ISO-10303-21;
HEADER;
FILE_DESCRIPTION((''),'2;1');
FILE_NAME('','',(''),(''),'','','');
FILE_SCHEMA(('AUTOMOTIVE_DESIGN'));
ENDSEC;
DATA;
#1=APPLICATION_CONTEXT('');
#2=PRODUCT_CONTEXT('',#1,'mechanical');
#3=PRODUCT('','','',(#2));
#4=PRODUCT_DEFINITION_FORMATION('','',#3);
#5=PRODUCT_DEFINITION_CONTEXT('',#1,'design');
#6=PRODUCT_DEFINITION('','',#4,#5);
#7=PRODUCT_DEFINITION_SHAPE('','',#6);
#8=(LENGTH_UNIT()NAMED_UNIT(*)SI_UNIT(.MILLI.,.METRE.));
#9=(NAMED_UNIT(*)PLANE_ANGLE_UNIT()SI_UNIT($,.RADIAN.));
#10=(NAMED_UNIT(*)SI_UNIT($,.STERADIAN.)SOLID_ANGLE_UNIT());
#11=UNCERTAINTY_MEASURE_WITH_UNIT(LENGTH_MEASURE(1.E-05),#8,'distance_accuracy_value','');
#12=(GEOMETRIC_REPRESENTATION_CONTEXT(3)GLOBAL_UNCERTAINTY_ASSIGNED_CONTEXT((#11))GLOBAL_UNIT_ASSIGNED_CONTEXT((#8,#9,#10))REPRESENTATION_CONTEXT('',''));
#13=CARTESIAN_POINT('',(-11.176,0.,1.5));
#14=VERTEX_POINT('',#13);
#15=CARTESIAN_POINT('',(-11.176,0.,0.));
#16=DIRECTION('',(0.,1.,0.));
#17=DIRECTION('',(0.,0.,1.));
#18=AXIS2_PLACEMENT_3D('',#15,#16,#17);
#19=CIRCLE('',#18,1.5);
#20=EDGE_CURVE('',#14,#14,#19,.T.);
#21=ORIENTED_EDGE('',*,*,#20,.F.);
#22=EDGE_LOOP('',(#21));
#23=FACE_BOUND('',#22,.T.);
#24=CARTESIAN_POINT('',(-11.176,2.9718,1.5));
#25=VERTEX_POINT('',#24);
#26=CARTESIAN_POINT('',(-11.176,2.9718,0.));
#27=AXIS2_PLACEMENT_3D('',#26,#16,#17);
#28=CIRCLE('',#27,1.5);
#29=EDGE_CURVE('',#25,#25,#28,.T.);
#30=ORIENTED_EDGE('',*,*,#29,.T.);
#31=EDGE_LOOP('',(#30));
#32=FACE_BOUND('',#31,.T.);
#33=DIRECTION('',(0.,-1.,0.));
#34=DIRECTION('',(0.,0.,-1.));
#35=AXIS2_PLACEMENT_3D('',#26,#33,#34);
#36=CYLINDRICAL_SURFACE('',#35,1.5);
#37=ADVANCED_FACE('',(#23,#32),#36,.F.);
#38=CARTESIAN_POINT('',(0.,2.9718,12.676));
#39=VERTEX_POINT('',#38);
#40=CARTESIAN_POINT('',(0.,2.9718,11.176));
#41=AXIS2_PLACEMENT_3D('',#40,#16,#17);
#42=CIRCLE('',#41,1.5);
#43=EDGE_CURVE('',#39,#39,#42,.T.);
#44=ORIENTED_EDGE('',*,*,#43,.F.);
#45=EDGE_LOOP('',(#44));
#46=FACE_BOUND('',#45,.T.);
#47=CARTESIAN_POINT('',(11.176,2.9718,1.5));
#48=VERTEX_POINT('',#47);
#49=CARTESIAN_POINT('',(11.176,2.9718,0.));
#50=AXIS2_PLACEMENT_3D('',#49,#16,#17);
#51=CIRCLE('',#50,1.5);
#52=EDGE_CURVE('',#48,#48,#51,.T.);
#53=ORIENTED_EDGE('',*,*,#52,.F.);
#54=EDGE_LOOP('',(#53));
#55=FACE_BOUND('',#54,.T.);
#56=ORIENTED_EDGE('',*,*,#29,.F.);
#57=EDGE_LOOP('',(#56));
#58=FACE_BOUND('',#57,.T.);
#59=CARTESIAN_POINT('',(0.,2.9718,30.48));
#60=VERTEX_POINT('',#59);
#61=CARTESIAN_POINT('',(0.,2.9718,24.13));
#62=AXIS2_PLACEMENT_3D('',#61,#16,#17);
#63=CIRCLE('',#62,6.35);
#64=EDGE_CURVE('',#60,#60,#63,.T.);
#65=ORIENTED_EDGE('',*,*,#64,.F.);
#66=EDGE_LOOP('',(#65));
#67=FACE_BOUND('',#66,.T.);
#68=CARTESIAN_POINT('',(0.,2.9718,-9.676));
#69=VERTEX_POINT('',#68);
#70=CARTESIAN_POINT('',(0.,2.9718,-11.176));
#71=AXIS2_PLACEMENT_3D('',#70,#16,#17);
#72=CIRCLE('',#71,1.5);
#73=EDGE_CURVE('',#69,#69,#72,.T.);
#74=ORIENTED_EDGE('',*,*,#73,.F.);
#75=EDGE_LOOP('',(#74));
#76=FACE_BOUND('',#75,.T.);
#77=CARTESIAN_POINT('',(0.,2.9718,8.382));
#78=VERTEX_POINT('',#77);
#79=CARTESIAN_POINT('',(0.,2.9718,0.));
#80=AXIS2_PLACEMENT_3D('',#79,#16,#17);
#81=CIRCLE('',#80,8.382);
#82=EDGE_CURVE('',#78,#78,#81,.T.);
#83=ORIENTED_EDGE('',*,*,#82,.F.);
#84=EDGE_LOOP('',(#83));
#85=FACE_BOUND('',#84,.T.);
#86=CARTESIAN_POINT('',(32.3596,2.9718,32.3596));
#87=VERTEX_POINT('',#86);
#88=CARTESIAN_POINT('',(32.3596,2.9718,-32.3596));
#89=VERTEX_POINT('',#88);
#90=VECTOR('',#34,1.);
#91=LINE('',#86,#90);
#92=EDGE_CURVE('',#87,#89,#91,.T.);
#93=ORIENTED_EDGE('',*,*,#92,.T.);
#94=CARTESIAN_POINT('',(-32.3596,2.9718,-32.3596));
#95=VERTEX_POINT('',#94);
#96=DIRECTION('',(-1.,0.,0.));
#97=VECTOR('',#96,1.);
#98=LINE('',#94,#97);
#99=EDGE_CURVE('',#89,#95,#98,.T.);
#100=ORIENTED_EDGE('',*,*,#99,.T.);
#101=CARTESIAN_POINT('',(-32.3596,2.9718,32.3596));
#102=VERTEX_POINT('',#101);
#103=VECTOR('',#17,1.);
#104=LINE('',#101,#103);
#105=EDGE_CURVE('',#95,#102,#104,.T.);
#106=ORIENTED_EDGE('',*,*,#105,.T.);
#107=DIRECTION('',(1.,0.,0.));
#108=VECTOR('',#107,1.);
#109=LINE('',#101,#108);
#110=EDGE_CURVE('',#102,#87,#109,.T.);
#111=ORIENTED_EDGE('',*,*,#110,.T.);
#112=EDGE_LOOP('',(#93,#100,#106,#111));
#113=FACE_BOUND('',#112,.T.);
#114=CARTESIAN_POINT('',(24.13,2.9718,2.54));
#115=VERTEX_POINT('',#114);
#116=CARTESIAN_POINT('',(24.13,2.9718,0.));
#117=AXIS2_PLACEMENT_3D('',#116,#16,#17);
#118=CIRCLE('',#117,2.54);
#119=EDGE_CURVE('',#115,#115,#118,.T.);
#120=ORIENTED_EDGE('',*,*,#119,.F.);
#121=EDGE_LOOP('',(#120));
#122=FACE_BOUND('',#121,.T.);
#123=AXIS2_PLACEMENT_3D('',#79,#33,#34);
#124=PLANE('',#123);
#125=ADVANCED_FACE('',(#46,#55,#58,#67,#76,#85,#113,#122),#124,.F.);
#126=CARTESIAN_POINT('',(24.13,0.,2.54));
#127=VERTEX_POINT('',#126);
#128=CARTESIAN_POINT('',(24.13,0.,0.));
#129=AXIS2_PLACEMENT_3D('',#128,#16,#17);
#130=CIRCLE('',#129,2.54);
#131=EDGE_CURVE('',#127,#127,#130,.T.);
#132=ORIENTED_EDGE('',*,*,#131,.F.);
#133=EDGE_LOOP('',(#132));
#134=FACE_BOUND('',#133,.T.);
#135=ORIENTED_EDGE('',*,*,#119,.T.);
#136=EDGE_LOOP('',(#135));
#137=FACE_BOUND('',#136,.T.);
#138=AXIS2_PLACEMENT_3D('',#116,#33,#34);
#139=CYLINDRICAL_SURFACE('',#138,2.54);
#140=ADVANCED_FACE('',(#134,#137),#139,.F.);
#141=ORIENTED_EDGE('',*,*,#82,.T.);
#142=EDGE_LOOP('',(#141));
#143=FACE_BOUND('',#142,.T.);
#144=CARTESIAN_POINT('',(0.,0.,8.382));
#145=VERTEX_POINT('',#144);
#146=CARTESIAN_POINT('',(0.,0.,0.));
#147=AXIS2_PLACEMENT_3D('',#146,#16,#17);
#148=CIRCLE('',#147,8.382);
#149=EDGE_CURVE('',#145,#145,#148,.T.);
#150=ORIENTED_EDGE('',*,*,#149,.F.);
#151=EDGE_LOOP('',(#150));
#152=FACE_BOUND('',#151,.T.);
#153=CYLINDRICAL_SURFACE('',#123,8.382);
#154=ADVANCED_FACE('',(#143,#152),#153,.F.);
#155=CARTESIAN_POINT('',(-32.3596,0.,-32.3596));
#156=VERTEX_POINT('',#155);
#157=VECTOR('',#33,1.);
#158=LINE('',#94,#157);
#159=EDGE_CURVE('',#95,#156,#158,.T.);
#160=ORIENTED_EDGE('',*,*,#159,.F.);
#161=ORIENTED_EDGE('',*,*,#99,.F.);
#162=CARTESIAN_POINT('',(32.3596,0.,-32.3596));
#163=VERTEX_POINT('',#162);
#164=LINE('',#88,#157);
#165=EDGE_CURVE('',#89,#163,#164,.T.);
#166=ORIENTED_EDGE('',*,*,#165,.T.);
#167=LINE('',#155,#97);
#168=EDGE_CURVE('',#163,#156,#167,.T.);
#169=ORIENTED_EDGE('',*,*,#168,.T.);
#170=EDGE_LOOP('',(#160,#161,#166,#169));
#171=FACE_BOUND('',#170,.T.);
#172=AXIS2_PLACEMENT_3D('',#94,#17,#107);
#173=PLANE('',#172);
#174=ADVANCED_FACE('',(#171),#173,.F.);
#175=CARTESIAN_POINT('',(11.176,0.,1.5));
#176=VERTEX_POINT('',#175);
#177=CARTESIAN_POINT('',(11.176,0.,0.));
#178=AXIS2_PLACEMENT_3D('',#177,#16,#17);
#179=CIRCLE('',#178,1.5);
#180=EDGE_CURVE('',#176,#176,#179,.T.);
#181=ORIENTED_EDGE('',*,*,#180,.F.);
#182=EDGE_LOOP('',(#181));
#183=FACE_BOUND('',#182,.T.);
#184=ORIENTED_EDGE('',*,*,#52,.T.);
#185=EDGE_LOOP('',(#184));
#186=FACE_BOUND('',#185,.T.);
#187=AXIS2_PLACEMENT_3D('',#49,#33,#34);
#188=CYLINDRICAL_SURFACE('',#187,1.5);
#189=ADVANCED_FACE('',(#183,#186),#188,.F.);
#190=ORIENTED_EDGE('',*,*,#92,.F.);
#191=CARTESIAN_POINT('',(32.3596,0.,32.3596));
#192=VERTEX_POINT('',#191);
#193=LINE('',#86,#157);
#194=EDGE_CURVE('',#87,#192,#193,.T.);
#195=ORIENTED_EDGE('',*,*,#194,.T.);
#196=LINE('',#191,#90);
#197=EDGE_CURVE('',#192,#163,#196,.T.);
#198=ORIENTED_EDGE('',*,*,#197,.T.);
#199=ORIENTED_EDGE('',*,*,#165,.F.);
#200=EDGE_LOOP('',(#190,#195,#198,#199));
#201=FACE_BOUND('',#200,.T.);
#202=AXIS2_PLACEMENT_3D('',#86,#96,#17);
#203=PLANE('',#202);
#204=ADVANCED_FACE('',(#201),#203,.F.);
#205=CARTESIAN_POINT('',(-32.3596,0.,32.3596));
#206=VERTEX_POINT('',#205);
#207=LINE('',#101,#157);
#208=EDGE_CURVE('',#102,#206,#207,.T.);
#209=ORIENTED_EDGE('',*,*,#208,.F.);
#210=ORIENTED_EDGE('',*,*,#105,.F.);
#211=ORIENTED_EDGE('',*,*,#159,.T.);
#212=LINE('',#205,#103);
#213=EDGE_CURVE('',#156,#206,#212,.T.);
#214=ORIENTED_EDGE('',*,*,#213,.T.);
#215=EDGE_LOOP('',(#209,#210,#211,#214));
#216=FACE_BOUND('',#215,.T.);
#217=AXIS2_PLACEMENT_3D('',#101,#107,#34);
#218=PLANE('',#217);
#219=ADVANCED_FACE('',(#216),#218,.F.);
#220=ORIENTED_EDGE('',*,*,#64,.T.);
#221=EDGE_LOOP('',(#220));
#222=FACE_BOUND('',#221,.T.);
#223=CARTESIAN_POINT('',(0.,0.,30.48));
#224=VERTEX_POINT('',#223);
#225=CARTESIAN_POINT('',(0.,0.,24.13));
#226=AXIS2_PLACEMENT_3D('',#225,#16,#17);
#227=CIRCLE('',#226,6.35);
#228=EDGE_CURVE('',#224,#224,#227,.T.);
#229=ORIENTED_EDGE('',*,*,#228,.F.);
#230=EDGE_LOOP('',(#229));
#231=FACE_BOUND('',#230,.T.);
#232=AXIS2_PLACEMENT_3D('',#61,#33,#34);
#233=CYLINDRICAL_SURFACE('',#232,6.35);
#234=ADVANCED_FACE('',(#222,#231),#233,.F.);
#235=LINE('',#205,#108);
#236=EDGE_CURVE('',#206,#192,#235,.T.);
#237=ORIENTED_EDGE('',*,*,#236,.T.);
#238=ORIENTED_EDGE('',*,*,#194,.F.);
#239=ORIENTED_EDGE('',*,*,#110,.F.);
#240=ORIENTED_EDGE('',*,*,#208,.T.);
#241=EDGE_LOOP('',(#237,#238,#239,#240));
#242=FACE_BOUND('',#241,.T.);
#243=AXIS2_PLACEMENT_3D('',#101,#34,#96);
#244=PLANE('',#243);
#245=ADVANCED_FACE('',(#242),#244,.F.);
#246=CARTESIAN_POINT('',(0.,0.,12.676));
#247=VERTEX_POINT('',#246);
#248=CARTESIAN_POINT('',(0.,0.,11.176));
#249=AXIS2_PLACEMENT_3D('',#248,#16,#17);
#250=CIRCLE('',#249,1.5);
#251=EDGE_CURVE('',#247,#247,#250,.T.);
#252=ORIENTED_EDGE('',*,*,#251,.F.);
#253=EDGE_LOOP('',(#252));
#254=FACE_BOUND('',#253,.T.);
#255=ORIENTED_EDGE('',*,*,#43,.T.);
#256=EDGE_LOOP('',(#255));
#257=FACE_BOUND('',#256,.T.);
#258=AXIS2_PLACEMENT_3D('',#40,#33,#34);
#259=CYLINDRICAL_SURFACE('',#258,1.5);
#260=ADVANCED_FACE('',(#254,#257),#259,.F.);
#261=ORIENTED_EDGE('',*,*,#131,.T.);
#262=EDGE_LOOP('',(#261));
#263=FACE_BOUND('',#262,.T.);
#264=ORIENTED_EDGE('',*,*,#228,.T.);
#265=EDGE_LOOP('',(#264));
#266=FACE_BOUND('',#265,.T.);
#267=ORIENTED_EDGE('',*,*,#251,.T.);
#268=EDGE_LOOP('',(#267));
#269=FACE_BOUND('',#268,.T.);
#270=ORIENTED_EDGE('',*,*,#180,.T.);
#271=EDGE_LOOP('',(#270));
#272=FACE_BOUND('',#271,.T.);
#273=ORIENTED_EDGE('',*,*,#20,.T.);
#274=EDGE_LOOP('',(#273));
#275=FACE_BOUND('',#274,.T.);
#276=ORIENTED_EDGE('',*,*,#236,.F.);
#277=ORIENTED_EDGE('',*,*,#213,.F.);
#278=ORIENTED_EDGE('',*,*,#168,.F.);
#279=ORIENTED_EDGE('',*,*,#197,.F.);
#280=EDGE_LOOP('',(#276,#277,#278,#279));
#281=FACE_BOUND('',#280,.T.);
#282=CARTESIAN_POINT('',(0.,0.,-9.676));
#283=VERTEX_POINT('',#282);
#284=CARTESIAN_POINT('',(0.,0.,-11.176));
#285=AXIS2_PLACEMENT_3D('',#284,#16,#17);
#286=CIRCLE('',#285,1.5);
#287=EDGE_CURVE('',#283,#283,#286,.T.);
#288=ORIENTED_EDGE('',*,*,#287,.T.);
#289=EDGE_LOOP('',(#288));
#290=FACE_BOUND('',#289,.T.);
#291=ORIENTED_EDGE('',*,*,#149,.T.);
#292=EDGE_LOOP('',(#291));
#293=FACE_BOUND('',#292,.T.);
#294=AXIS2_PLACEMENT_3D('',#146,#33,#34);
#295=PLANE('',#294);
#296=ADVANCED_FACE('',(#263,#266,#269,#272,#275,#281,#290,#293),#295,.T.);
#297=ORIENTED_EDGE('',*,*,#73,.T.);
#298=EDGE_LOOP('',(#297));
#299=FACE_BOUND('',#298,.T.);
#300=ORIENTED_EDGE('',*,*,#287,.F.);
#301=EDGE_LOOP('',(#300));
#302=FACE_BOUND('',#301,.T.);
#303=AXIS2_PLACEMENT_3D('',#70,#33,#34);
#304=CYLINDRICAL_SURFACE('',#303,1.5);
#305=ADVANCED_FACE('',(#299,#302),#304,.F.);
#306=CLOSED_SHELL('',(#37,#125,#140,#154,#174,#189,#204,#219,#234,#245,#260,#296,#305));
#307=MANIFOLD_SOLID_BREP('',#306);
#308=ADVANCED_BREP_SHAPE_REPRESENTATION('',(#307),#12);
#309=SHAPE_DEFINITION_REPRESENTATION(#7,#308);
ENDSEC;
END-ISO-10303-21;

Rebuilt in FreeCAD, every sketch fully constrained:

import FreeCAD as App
import Part
import Sketcher
from FreeCAD import Vector
Q = App.Units.Quantity


def add_polygon(sketch, points):
    """Adds a closed chain of lines whose ends are joined by coincident constraints."""
    first, n = sketch.GeometryCount, len(points)
    for a, b in zip(points, points[1:] + points[:1]):
        sketch.addGeometry(Part.LineSegment(App.Vector(*a, 0), App.Vector(*b, 0)), False)
    for i in range(n):
        sketch.addConstraint(Sketcher.Constraint("Coincident", first + i, 2, first + (i + 1) % n, 1))

doc = App.newDocument("Part")
params = doc.addObject("Spreadsheet::Sheet", "Params")
for row, (alias, value) in enumerate([
    ("sketch1_diameter", "0.5 in"),
    ("sketch1_diameter2", "0.2 in"),
    ("sketch1_diameter3", "0.66 in"),
    ("sketch1_width", "2.548 in"),
    ("pad1_length", "0.117 in"),
], start=1):
    params.set(f"A{row}", alias)
    params.set(f"B{row}", "=" + value)
    params.setAlias(f"B{row}", alias)

body = doc.addObject("PartDesign::Body", "Body")

# Sketch on XZ plane
sketch1 = doc.addObject("Sketcher::SketchObject", "Sketch")
body.addObject(sketch1)
sketch1.AttachmentSupport = (doc.XZ_Plane, [""])
sketch1.MapMode = "FlatFace"
add_polygon(sketch1, [(-32.4, -32.4), (-32.4, 32.4), (32.4, 32.4), (32.4, -32.4)])  # lines 0-3
sketch1.addGeometry(Part.Circle(Vector(0, 24.1, 0), Vector(0, 0, 1), 6.3), False)  # 4
sketch1.addGeometry(Part.Circle(Vector(0, 11.2, 0), Vector(0, 0, 1), 1.5), False)  # 5
sketch1.addGeometry(Part.Circle(Vector(-11.2, 0, 0), Vector(0, 0, 1), 1.5), False)  # 6
sketch1.addGeometry(Part.Circle(Vector(0, 0, 0), Vector(0, 0, 1), 8.4), False)  # 7
sketch1.addGeometry(Part.Circle(Vector(0, -11.2, 0), Vector(0, 0, 1), 1.5), False)  # 8
sketch1.addGeometry(Part.Circle(Vector(11.2, 0, 0), Vector(0, 0, 1), 1.5), False)  # 9
sketch1.addGeometry(Part.Circle(Vector(24.1, 0, 0), Vector(0, 0, 1), 2.5), False)  # 10
sketch1.addConstraint([
    Sketcher.Constraint("Vertical", 0),
    Sketcher.Constraint("Horizontal", 1),
    Sketcher.Constraint("Vertical", 2),
    Sketcher.Constraint("Horizontal", 3),
    Sketcher.Constraint("Coincident", 7, 3, -1, 1),
    Sketcher.Constraint("Equal", 5, 6),
    Sketcher.Constraint("Equal", 6, 8),
    Sketcher.Constraint("Equal", 8, 9),
    Sketcher.Constraint("Symmetric", 5, 3, 8, 3, -1, 1),
    Sketcher.Constraint("Symmetric", 6, 3, 9, 3, -1, 1),
    Sketcher.Constraint("Symmetric", 0, 2, 2, 2, -1, 1),
    Sketcher.Constraint("PointOnObject", 4, 3, -2),
    Sketcher.Constraint("PointOnObject", 5, 3, -2),
    Sketcher.Constraint("PointOnObject", 6, 3, -1),
    Sketcher.Constraint("PointOnObject", 10, 3, -1),
    Sketcher.Constraint("Equal", 3, 0),
    Sketcher.Constraint("Diameter", 4, Q("0.5 in")),
    Sketcher.Constraint("Diameter", 10, Q("0.2 in")),
    Sketcher.Constraint("Diameter", 7, Q("0.66 in")),
    Sketcher.Constraint("Diameter", 5, Q("3 mm")),
    Sketcher.Constraint("DistanceX", 1, 1, 1, 2, Q("2.548 in")),
    Sketcher.Constraint("DistanceY", -1, 1, 4, 3, Q("0.95 in")),
    Sketcher.Constraint("DistanceY", -1, 1, 5, 3, Q("0.44 in")),
    Sketcher.Constraint("DistanceX", 6, 3, -1, 1, Q("0.44 in")),
    Sketcher.Constraint("DistanceX", -1, 1, 10, 3, Q("0.95 in")),
])
sketch1.setExpression("Constraints[20]", "Params.sketch1_diameter")
sketch1.setExpression("Constraints[21]", "Params.sketch1_diameter2")
sketch1.setExpression("Constraints[22]", "Params.sketch1_diameter3")
sketch1.setExpression("Constraints[24]", "Params.sketch1_width")
pad1 = doc.addObject("PartDesign::Pad", "Pad")
body.addObject(pad1)
pad1.Profile = sketch1
pad1.setExpression("Length", "Params.pad1_length")
pad1.Reversed = True

doc.recompute()
